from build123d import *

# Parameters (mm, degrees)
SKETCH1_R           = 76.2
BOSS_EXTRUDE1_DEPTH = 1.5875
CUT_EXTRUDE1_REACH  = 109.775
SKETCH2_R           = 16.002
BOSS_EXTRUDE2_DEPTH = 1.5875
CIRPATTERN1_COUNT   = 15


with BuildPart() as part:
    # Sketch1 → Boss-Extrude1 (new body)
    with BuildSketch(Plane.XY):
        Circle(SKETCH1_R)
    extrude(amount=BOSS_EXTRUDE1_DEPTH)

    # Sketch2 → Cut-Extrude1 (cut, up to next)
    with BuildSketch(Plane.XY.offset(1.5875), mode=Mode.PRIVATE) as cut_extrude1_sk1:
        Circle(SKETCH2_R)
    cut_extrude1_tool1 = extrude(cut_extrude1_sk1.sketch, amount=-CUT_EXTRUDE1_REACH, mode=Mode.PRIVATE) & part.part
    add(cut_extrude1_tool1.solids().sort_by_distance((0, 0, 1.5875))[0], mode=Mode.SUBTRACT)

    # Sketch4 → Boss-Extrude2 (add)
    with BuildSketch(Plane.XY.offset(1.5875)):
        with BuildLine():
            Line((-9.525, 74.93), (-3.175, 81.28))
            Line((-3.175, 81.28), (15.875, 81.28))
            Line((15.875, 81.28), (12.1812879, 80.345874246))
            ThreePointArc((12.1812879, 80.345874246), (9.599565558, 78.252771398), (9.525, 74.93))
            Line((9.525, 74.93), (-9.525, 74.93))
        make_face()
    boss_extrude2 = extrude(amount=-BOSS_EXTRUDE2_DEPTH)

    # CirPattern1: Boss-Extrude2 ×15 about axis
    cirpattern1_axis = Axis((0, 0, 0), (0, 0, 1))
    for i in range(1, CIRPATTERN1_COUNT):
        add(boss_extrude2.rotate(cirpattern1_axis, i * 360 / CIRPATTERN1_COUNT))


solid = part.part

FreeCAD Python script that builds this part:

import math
import FreeCAD as App
import Part
import Sketcher

V = App.Vector
Q = App.Units.Quantity

doc = App.newDocument("Part")
body = doc.addObject("PartDesign::Body", "Body")

sketch1 = body.newObject("Sketcher::SketchObject", "Sketch")
sketch1.AttachmentSupport = (doc.getObject("XY_Plane"), [""])
sketch1.MapMode = "FlatFace"
sketch1.addGeometry(Part.Circle(V(0, 0, 0), V(0, 0, 1), 76), False)
sketch1.addConstraint(Sketcher.Constraint("Coincident", 0, 3, -1, 1))
sketch1.addConstraint(Sketcher.Constraint("Diameter", 0, Q("6 in")))
pad1 = body.newObject("PartDesign::Pad", "Pad")
pad1.Profile = sketch1
pad1.Length = Q("0.0625 in")

sketch2 = body.newObject("Sketcher::SketchObject", "Sketch001")
sketch2.AttachmentSupport = (doc.getObject("XY_Plane"), [""])
sketch2.MapMode = "FlatFace"
sketch2.AttachmentOffset = App.Placement(V(0, 0, 0.0625 * 25.4), App.Rotation())
sketch2.addGeometry(Part.Circle(V(0, 0, 0), V(0, 0, 1), 16), False)
sketch2.addConstraint(Sketcher.Constraint("Coincident", 0, 3, -1, 1))
sketch2.addConstraint(Sketcher.Constraint("Diameter", 0, Q("1.26 in")))
pocket1 = body.newObject("PartDesign::Pocket", "Pocket")
pocket1.Profile = sketch2
pocket1.Type = "UpToFirst"

sketch3 = body.newObject("Sketcher::SketchObject", "Sketch002")
sketch3.AttachmentSupport = (doc.getObject("XY_Plane"), [""])
sketch3.MapMode = "FlatFace"
sketch3.AttachmentOffset = App.Placement(V(0, 0, 0.0625 * 25.4), App.Rotation())
sketch3.addGeometry(Part.LineSegment(V(-3.2, 81.3, 0), V(-9.5, 74.9, 0)), False)
sketch3.addGeometry(Part.LineSegment(V(-9.5, 74.9, 0), V(9.5, 74.9, 0)), False)
sketch3.addGeometry(Part.ArcOfCircle(Part.Circle(V(13.2, 76.5, 0), V(0, 0, 1), 4), math.radians(104), math.radians(204)), False)
sketch3.addGeometry(Part.LineSegment(V(12.2, 80.3, 0), V(15.9, 81.3, 0)), False)
sketch3.addGeometry(Part.LineSegment(V(15.9, 81.3, 0), V(-3.2, 81.3, 0)), False)
sketch3.addConstraint(Sketcher.Constraint("Coincident", 0, 2, 1, 1))
sketch3.addConstraint(Sketcher.Constraint("Coincident", 1, 2, 2, 2))
sketch3.addConstraint(Sketcher.Constraint("Tangent", 2, 1, 3, 1))
sketch3.addConstraint(Sketcher.Constraint("Coincident", 3, 2, 4, 1))
sketch3.addConstraint(Sketcher.Constraint("Coincident", 4, 2, 0, 1))
sketch3.addConstraint(Sketcher.Constraint("Horizontal", 1))
sketch3.addConstraint(Sketcher.Constraint("Horizontal", 4))
sketch3.addConstraint(Sketcher.Constraint("Equal", 1, 4))
sketch3.addConstraint(Sketcher.Constraint("Angle", 0, Q("-135 deg")))
sketch3.addConstraint(Sketcher.Constraint("DistanceX", 0, 2, 3, 2, Q("1 in")))
sketch3.addConstraint(Sketcher.Constraint("DistanceX", 1, 1, 1, 2, Q("0.75 in")))
sketch3.addConstraint(Sketcher.Constraint("DistanceY", -1, 1, 3, 2, Q("3.2 in")))
sketch3.addConstraint(Sketcher.Constraint("Distance", 3, Q("0.15 in")))
sketch3.addConstraint(Sketcher.Constraint("DistanceX", 0, 2, -1, 1, Q("0.375 in")))
sketch3.addConstraint(Sketcher.Constraint("Radius", 2, 3.955762))
pad2 = body.newObject("PartDesign::Pad", "Pad001")
pad2.Profile = sketch3
pad2.Length = Q("0.0625 in")
pad2.Reversed = True
doc.recompute()

polarpattern = body.newObject("PartDesign::PolarPattern", "PolarPattern")
polarpattern.Originals = [pad2]
polarpattern.Axis = (doc.getObject("Z_Axis"), [""])
polarpattern.Angle = 360
polarpattern.Occurrences = 15
body.Tip = polarpattern

doc.recompute()
